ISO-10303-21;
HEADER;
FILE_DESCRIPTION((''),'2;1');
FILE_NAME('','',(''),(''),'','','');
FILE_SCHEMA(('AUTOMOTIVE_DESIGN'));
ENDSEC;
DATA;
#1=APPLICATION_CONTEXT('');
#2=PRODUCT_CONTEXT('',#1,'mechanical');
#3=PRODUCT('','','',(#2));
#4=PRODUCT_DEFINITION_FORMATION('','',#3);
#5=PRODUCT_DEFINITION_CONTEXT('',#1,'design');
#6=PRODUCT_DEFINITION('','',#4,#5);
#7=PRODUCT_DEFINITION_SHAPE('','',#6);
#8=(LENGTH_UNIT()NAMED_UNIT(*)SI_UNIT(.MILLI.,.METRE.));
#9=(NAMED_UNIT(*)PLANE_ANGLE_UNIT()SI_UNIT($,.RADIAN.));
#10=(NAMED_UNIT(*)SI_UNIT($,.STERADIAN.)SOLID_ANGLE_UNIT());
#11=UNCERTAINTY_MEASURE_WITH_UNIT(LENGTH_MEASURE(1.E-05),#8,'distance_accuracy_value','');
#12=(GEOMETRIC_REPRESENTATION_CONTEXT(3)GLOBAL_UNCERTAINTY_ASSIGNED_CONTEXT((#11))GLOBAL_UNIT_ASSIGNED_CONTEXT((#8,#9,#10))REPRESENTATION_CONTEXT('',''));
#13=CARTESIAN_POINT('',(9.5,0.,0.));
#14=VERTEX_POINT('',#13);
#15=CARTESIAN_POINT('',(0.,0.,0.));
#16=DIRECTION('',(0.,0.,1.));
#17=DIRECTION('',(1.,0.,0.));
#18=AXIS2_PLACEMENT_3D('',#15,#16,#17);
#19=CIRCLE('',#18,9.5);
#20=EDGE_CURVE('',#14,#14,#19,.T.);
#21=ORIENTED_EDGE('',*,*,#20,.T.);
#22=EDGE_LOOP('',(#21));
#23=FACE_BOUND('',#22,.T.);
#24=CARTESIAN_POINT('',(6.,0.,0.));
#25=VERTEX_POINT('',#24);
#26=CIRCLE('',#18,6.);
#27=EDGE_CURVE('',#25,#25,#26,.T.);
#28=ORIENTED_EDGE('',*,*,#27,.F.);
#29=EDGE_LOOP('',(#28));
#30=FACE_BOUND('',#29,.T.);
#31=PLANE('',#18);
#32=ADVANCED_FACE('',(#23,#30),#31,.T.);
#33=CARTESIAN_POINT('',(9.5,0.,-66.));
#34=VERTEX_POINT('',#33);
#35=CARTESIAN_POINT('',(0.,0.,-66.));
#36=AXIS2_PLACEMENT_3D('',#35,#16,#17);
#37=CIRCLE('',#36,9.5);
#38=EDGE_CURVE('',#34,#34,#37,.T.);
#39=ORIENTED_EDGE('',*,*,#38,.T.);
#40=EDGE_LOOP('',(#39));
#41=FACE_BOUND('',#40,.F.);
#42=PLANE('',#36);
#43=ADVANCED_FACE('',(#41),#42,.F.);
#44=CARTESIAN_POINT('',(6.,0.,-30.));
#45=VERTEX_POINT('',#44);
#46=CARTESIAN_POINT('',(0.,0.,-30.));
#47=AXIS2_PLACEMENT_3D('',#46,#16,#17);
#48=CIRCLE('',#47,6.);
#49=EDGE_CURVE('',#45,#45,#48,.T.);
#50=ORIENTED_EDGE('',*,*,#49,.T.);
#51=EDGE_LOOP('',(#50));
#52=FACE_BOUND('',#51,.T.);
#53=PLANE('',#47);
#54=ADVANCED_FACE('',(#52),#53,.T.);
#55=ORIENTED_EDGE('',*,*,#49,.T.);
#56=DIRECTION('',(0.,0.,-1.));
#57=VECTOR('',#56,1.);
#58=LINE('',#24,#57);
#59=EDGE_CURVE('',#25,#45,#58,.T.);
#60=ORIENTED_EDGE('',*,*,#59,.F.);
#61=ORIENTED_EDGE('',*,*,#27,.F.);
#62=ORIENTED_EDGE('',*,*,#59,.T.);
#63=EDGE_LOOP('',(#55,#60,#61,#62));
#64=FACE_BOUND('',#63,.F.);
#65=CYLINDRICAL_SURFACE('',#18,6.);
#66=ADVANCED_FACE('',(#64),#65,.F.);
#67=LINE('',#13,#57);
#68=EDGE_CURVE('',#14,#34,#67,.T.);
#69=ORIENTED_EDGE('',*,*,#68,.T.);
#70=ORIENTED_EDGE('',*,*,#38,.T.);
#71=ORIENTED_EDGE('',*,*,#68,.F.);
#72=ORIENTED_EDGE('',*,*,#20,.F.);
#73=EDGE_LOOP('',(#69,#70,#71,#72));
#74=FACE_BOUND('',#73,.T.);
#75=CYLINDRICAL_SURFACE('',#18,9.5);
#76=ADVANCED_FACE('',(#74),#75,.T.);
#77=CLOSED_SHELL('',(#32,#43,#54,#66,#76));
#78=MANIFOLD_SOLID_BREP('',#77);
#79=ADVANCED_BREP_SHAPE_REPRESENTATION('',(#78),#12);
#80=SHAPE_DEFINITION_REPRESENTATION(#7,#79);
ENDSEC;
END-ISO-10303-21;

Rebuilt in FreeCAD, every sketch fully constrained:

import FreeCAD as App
import Part
import Sketcher

doc = App.newDocument("Part")
params = doc.addObject("Spreadsheet::Sheet", "Params")
for row, (alias, value) in enumerate([
    ("sketch1_diameter", "19 mm"),
    ("pad1_length", "66 mm"),
    ("sketch2_diameter", "12 mm"),
    ("pocket1_length", "30 mm"),
], start=1):
    params.set(f"A{row}", alias)
    params.set(f"B{row}", "=" + value)
    params.setAlias(f"B{row}", alias)

body = doc.addObject("PartDesign::Body", "Body")

# Sketch on XY plane
sketch1 = body.newObject("Sketcher::SketchObject", "Sketch")
sketch1.AttachmentSupport = (doc.getObject("XY_Plane"), [""])
sketch1.MapMode = "FlatFace"
sketch1.addGeometry(Part.Circle(App.Vector(0, 0, 0), App.Vector(0, 0, 1), 10), False)
sketch1.addConstraint([
    Sketcher.Constraint("Coincident", 0, 3, -1, 1),
    Sketcher.Constraint("Diameter", 0, 19.0),
])
sketch1.setExpression("Constraints[1]", "Params.sketch1_diameter")
pad1 = body.newObject("PartDesign::Pad", "Pad")
pad1.Profile = sketch1
pad1.setExpression("Length", "Params.pad1_length")
pad1.Reversed = True

# Sketch on XY plane
sketch2 = body.newObject("Sketcher::SketchObject", "Sketch001")
sketch2.AttachmentSupport = (doc.getObject("XY_Plane"), [""])
sketch2.MapMode = "FlatFace"
sketch2.addGeometry(Part.Circle(App.Vector(0, 0, 0), App.Vector(0, 0, 1), 6), False)
sketch2.addConstraint([
    Sketcher.Constraint("Coincident", 0, 3, -1, 1),
    Sketcher.Constraint("Diameter", 0, 12.0),
])
sketch2.setExpression("Constraints[1]", "Params.sketch2_diameter")
pocket1 = body.newObject("PartDesign::Pocket", "Pocket")
pocket1.Profile = sketch2
pocket1.setExpression("Length", "Params.pocket1_length")

doc.recompute()
